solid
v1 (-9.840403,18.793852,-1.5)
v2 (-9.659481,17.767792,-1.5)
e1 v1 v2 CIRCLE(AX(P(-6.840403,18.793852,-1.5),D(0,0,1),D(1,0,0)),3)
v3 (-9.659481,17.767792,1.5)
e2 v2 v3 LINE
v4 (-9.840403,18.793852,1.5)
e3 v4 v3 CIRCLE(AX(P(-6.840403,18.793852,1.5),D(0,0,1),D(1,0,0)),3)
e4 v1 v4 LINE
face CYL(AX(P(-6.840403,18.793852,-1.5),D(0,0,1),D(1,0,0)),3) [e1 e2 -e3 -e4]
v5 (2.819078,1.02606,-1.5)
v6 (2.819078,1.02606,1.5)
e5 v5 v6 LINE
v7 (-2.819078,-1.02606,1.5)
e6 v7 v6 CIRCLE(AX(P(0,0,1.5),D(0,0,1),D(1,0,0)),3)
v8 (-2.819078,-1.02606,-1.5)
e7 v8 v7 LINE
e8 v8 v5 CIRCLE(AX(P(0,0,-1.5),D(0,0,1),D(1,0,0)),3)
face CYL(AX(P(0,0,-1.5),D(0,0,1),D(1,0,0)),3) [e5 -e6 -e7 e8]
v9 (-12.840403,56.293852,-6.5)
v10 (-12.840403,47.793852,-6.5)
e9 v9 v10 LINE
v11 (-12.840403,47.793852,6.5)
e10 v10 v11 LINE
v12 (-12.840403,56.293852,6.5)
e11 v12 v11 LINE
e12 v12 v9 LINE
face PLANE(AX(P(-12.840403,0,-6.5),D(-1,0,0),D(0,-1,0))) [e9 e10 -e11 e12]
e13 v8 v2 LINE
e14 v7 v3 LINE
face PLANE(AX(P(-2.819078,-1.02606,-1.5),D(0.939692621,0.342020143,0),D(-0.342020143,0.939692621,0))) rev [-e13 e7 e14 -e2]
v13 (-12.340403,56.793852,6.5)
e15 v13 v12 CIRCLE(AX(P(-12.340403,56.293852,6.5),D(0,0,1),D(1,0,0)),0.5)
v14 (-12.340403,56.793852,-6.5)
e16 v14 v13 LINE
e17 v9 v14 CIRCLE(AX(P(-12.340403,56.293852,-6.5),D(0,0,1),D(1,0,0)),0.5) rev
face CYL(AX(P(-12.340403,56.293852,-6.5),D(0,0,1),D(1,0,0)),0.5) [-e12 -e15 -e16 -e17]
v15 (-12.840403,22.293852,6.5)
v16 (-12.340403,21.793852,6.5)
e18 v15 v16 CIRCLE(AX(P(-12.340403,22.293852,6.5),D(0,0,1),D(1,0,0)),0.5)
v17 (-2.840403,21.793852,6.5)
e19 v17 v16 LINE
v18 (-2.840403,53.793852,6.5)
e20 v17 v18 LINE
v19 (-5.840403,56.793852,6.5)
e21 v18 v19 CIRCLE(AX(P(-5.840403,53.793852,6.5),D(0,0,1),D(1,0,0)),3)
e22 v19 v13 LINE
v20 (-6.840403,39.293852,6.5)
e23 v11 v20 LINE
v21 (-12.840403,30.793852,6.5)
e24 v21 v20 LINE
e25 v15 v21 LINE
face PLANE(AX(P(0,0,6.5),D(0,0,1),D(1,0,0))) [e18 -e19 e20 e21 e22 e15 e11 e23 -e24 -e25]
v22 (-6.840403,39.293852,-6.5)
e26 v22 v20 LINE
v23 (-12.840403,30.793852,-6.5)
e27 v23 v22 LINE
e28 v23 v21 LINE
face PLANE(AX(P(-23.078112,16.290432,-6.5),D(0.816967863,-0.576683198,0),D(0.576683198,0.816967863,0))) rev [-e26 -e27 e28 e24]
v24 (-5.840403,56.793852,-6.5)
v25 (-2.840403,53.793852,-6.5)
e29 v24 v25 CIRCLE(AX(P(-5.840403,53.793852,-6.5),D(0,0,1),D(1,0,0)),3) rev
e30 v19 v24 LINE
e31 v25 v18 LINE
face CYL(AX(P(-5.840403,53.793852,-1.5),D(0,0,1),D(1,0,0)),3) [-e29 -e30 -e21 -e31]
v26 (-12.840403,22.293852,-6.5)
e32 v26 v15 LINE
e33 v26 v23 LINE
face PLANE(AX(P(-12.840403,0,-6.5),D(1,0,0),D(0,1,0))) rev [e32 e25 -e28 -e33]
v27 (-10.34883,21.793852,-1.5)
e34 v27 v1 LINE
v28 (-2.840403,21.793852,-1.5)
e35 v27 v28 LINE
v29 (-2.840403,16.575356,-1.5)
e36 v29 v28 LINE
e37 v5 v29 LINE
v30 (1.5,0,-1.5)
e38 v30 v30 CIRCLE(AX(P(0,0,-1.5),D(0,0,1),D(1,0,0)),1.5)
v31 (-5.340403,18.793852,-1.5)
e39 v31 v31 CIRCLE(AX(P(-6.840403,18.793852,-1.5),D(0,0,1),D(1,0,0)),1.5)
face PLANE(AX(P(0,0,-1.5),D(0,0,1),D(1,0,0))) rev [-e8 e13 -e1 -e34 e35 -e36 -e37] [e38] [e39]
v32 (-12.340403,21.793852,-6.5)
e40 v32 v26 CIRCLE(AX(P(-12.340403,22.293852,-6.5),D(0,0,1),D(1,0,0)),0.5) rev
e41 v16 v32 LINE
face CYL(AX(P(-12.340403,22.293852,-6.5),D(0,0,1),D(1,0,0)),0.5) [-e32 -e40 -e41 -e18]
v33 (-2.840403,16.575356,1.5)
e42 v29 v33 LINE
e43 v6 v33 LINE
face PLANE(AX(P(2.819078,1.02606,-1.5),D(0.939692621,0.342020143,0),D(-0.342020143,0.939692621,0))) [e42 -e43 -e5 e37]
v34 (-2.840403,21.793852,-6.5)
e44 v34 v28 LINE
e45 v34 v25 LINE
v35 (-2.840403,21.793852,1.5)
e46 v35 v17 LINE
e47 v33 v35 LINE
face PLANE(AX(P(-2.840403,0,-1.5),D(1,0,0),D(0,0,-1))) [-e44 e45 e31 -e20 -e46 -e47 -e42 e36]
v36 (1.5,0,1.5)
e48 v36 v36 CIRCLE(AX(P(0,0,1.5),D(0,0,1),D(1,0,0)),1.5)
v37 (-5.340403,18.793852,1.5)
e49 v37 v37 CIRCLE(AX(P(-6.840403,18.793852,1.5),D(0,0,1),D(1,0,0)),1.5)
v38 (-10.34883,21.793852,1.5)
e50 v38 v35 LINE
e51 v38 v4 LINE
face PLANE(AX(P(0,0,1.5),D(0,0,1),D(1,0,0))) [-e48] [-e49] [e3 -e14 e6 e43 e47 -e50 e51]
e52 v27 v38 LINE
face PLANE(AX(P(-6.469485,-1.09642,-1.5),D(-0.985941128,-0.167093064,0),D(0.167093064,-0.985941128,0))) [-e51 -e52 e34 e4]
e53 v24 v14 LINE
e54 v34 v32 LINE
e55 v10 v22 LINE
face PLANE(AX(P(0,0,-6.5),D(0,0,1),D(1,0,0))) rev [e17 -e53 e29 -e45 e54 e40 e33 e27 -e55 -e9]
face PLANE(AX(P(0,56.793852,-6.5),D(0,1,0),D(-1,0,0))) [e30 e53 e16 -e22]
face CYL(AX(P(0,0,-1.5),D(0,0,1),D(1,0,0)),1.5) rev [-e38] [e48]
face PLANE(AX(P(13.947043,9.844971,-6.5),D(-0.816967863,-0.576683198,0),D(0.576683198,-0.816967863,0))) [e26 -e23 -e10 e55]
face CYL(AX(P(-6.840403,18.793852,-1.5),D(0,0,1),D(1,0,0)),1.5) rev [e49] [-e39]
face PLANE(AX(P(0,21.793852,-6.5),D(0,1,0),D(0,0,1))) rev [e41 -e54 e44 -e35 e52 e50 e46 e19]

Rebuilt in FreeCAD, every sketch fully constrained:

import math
import FreeCAD as App
import Part
import Sketcher
Q = App.Units.Quantity


def edges_at(feature, points):
    """Names of the edges that pass closest to the given points."""
    edges = feature.Shape.Edges
    near = lambda p: min(range(len(edges)), key=lambda i: edges[i].distToShape(Part.Vertex(*p))[0])
    return sorted({f"Edge{near(p) + 1}" for p in points})

doc = App.newDocument("Part")
params = doc.addObject("Spreadsheet::Sheet", "Params")
for row, (alias, value) in enumerate([
    ("sketch1_diameter", "3 mm"),
    ("sketch1_radius", "3 mm"),
    ("sketch1_length", "20 mm"),
    ("pad1_length", "1.5 mm"),
    ("pad1_length2", "1.5 mm"),
    ("sketch2_width", "10 mm"),
    ("sketch2_height", "35 mm"),
    ("sketch2_height2", "9 mm"),
    ("pad2_length", "6.5 mm"),
    ("pad2_length2", "6.5 mm"),
    ("fillet_radius", "3 mm"),
    ("fillet2_radius", "0.5 mm"),
    ("fillet3_radius", "0.5 mm"),
], start=1):
    params.set(f"A{row}", alias)
    params.set(f"B{row}", "=" + value)
    params.setAlias(f"B{row}", alias)

body = doc.addObject("PartDesign::Body", "Body")

# Sketch on XY plane
sketch1 = body.newObject("Sketcher::SketchObject", "Sketch")
sketch1.AttachmentSupport = (doc.getObject("XY_Plane"), [""])
sketch1.MapMode = "FlatFace"
sketch1.addGeometry([
    Part.LineSegment(App.Vector(2.819078, 1.02606, 0), App.Vector(-2.840403, 16.575356, 0)),  # 0
    Part.LineSegment(App.Vector(-2.840403, 16.575356, 0), App.Vector(-2.840403, 21.793852, 0)),  # 1
    Part.LineSegment(App.Vector(-2.840403, 21.793852, 0), App.Vector(-10.34883, 21.793852, 0)),  # 2
    Part.LineSegment(App.Vector(-10.34883, 21.793852, 0), App.Vector(-9.840403, 18.793852, 0)),  # 3
    Part.ArcOfCircle(Part.Circle(App.Vector(-6.840403, 18.793852, 0), App.Vector(0, 0, 1), 3), math.radians(180), math.radians(200)),  # 4
    Part.LineSegment(App.Vector(-9.659481, 17.767792, 0), App.Vector(-2.819078, -1.02606, 0)),  # 5
    Part.ArcOfCircle(Part.Circle(App.Vector(0, 0, 0), App.Vector(0, 0, 1), 3), math.radians(-160), math.radians(20)),  # 6
    Part.Circle(App.Vector(0, 0, 0), App.Vector(0, 0, 1), 1.5),  # 7
    Part.Circle(App.Vector(-6.840403, 18.793852, 0), App.Vector(0, 0, 1), 1.5),  # 8
], False)
sketch1.addConstraint([
    Sketcher.Constraint("Coincident", 0, 2, 1, 1),
    Sketcher.Constraint("Coincident", 1, 2, 2, 1),
    Sketcher.Constraint("Coincident", 2, 2, 3, 1),
    Sketcher.Constraint("Coincident", 3, 2, 4, 1),
    Sketcher.Constraint("Tangent", 4, 2, 5, 1),
    Sketcher.Constraint("Tangent", 5, 2, 6, 1),
    Sketcher.Constraint("Tangent", 6, 2, 0, 1),
    Sketcher.Constraint("Vertical", 1),
    Sketcher.Constraint("Horizontal", 2),
    Sketcher.Constraint("Coincident", 6, 3, -1, 1),
    Sketcher.Constraint("Coincident", 7, 3, -1, 1),
    Sketcher.Constraint("Coincident", 8, 3, 4, 3),
    Sketcher.Constraint("Equal", 4, 6),
    Sketcher.Constraint("Equal", 7, 8),
    Sketcher.Constraint("Parallel", 0, 5),
    Sketcher.Constraint("Horizontal", 8, 3, 3, 2),
    Sketcher.Constraint("Diameter", 7, 3.0),
    Sketcher.Constraint("Radius", 4, 3.0),
    Sketcher.Constraint("Angle", 0, Q("110 deg")),
    Sketcher.Constraint("Distance", 5, 20.0),
    Sketcher.Constraint("DistanceX", 4, 3, 0, 2, 4.0),
    Sketcher.Constraint("DistanceY", 4, 3, 1, 2, 3.0),
    Sketcher.Constraint("Distance", 3, 3.042778),
])
sketch1.setExpression("Constraints[16]", "Params.sketch1_diameter")
sketch1.setExpression("Constraints[17]", "Params.sketch1_radius")
sketch1.setExpression("Constraints[19]", "Params.sketch1_length")
pad1 = body.newObject("PartDesign::Pad", "Pad")
pad1.Profile = sketch1
pad1.Type = "TwoLengths"
pad1.setExpression("Length", "Params.pad1_length")
pad1.setExpression("Length2", "Params.pad1_length2")

# Sketch on XY plane
sketch2 = body.newObject("Sketcher::SketchObject", "Sketch001")
sketch2.AttachmentSupport = (doc.getObject("XY_Plane"), [""])
sketch2.MapMode = "FlatFace"
sketch2.addGeometry([
    Part.LineSegment(App.Vector(-12.840403, 21.793852, 0), App.Vector(-2.840403, 21.793852, 0)),  # 0
    Part.LineSegment(App.Vector(-2.840403, 21.793852, 0), App.Vector(-2.840403, 56.793852, 0)),  # 1
    Part.LineSegment(App.Vector(-2.840403, 56.793852, 0), App.Vector(-12.840403, 56.793852, 0)),  # 2
    Part.LineSegment(App.Vector(-12.840403, 56.793852, 0), App.Vector(-12.840403, 47.793852, 0)),  # 3
    Part.LineSegment(App.Vector(-12.840403, 47.793852, 0), App.Vector(-6.840403, 39.293852, 0)),  # 4
    Part.LineSegment(App.Vector(-6.840403, 39.293852, 0), App.Vector(-12.840403, 30.793852, 0)),  # 5
    Part.LineSegment(App.Vector(-12.840403, 30.793852, 0), App.Vector(-12.840403, 21.793852, 0)),  # 6
], False)
sketch2.addConstraint([
    Sketcher.Constraint("Coincident", 0, 2, 1, 1),
    Sketcher.Constraint("Coincident", 1, 2, 2, 1),
    Sketcher.Constraint("Coincident", 2, 2, 3, 1),
    Sketcher.Constraint("Coincident", 3, 2, 4, 1),
    Sketcher.Constraint("Coincident", 4, 2, 5, 1),
    Sketcher.Constraint("Coincident", 5, 2, 6, 1),
    Sketcher.Constraint("Coincident", 6, 2, 0, 1),
    Sketcher.Constraint("Horizontal", 0),
    Sketcher.Constraint("Vertical", 1),
    Sketcher.Constraint("Horizontal", 2),
    Sketcher.Constraint("Vertical", 3),
    Sketcher.Constraint("Vertical", 6),
    Sketcher.Constraint("Vertical", 3, 2, 5, 2),
    Sketcher.Constraint("Equal", 3, 6),
    Sketcher.Constraint("Equal", 4, 5),
    Sketcher.Constraint("DistanceX", 0, 1, 0, 2, 10.0),
    Sketcher.Constraint("DistanceY", 1, 1, 1, 2, 35.0),
    Sketcher.Constraint("DistanceY", 3, 2, 3, 1, 9.0),
    Sketcher.Constraint("DistanceX", 3, 2, 4, 2, 6.0),
    Sketcher.Constraint("DistanceX", 0, 2, -1, 1, 2.840403),
    Sketcher.Constraint("DistanceY", -1, 1, 0, 2, 21.793852),
])
sketch2.setExpression("Constraints[15]", "Params.sketch2_width")
sketch2.setExpression("Constraints[16]", "Params.sketch2_height")
sketch2.setExpression("Constraints[17]", "Params.sketch2_height2")
pad2 = body.newObject("PartDesign::Pad", "Pad001")
pad2.Profile = sketch2
pad2.Type = "TwoLengths"
pad2.setExpression("Length", "Params.pad2_length")
pad2.setExpression("Length2", "Params.pad2_length2")
doc.recompute()

fillet = body.newObject("PartDesign::Fillet", "Fillet")
fillet.Base = (pad2, edges_at(pad2, [(-2.84, 56.794, 0)]))
fillet.setExpression("Radius", "Params.fillet_radius")
doc.recompute()

fillet2 = body.newObject("PartDesign::Fillet", "Fillet001")
fillet2.Base = (fillet, edges_at(fillet, [(-12.84, 21.794, 0)]))
fillet2.setExpression("Radius", "Params.fillet2_radius")
doc.recompute()

fillet3 = body.newObject("PartDesign::Fillet", "Fillet002")
fillet3.Base = (fillet2, edges_at(fillet2, [(-12.84, 56.794, 0)]))
fillet3.setExpression("Radius", "Params.fillet3_radius")

doc.recompute()
